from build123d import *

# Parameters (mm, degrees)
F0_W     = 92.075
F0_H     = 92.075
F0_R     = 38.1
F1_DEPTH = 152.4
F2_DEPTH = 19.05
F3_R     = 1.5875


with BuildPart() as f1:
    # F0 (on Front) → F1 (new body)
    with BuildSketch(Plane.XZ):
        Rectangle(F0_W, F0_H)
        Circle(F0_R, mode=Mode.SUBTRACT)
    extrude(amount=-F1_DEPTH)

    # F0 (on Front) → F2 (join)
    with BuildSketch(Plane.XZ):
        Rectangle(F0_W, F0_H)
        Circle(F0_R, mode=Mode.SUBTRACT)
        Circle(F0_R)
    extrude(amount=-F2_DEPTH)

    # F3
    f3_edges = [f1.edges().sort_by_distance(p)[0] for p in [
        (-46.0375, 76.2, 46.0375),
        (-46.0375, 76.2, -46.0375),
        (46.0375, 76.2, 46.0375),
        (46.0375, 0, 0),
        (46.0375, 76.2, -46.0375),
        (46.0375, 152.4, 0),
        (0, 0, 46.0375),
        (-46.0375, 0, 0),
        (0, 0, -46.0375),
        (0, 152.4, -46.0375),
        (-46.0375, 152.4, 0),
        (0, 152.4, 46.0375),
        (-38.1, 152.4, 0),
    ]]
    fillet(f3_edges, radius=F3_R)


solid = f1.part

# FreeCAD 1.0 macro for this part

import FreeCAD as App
import Part
import Sketcher

V = App.Vector
Q = App.Units.Quantity


def edges_at(feature, points):
    """Names of the edges that pass closest to the given points."""
    edges = feature.Shape.Edges
    near = lambda p: min(range(len(edges)), key=lambda i: edges[i].distToShape(Part.Vertex(*p))[0])
    return sorted({f"Edge{near(p) + 1}" for p in points})


def add_polygon(sketch, points):
    """Adds a closed chain of lines whose ends are joined by coincident constraints."""
    first, n = sketch.GeometryCount, len(points)
    for a, b in zip(points, points[1:] + points[:1]):
        sketch.addGeometry(Part.LineSegment(App.Vector(*a, 0), App.Vector(*b, 0)), False)
    for i in range(n):
        sketch.addConstraint(Sketcher.Constraint("Coincident", first + i, 2, first + (i + 1) % n, 1))

doc = App.newDocument("Part")
body = doc.addObject("PartDesign::Body", "Body")

sketch1 = body.newObject("Sketcher::SketchObject", "Sketch")
sketch1.AttachmentSupport = (doc.getObject("XZ_Plane"), [""])
sketch1.MapMode = "FlatFace"
add_polygon(sketch1, [(-46, 46), (-46, -46), (46, -46), (46, 46)])
sketch1.addGeometry(Part.Circle(V(0, 0, 0), V(0, 0, 1), 38), False)
sketch1.addConstraint(Sketcher.Constraint("Vertical", 0))
sketch1.addConstraint(Sketcher.Constraint("Horizontal", 1))
sketch1.addConstraint(Sketcher.Constraint("Vertical", 2))
sketch1.addConstraint(Sketcher.Constraint("Horizontal", 3))
sketch1.addConstraint(Sketcher.Constraint("Coincident", 4, 3, -1, 1))
sketch1.addConstraint(Sketcher.Constraint("Symmetric", 0, 2, 2, 2, -1, 1))
sketch1.addConstraint(Sketcher.Constraint("Equal", 3, 0))
sketch1.addConstraint(Sketcher.Constraint("Diameter", 4, Q("3 in")))
sketch1.addConstraint(Sketcher.Constraint("DistanceX", 1, 1, 1, 2, Q("3.625 in")))
pad1 = body.newObject("PartDesign::Pad", "Pad")
pad1.Profile = sketch1
pad1.Length = Q("6 in")
pad1.Reversed = True

sketch2 = body.newObject("Sketcher::SketchObject", "Sketch001")
sketch2.AttachmentSupport = (doc.getObject("XZ_Plane"), [""])
sketch2.MapMode = "FlatFace"
add_polygon(sketch2, [(-46, 46), (-46, -46), (46, -46), (46, 46)])
sketch2.addConstraint(Sketcher.Constraint("Vertical", 0))
sketch2.addConstraint(Sketcher.Constraint("Horizontal", 1))
sketch2.addConstraint(Sketcher.Constraint("Vertical", 2))
sketch2.addConstraint(Sketcher.Constraint("Horizontal", 3))
sketch2.addConstraint(Sketcher.Constraint("Symmetric", 0, 2, 2, 2, -1, 1))
sketch2.addConstraint(Sketcher.Constraint("Equal", 3, 0))
sketch2.addConstraint(Sketcher.Constraint("DistanceX", 1, 1, 1, 2, Q("3.625 in")))
pad2 = body.newObject("PartDesign::Pad", "Pad001")
pad2.Profile = sketch2
pad2.Length = Q("0.75 in")
pad2.Reversed = True
doc.recompute()

fillet = body.newObject("PartDesign::Fillet", "Fillet")
fillet.Base = (pad2, edges_at(pad2, [
    (-46.038, 76.2, 46.038),
    (-46.038, 76.2, -46.038),
    (46.038, 76.2, 46.038),
    (46.038, 0, 0),
    (46.038, 76.2, -46.038),
    (46.038, 152.4, 0),
    (0, 0, 46.038),
    (-46.038, 0, 0),
    (0, 0, -46.038),
    (0, 152.4, -46.038),
    (-46.038, 152.4, 0),
    (0, 152.4, 46.038),
    (-38.1, 152.4, 0),
]))
fillet.Radius = Q("0.0625 in")

doc.recompute()
